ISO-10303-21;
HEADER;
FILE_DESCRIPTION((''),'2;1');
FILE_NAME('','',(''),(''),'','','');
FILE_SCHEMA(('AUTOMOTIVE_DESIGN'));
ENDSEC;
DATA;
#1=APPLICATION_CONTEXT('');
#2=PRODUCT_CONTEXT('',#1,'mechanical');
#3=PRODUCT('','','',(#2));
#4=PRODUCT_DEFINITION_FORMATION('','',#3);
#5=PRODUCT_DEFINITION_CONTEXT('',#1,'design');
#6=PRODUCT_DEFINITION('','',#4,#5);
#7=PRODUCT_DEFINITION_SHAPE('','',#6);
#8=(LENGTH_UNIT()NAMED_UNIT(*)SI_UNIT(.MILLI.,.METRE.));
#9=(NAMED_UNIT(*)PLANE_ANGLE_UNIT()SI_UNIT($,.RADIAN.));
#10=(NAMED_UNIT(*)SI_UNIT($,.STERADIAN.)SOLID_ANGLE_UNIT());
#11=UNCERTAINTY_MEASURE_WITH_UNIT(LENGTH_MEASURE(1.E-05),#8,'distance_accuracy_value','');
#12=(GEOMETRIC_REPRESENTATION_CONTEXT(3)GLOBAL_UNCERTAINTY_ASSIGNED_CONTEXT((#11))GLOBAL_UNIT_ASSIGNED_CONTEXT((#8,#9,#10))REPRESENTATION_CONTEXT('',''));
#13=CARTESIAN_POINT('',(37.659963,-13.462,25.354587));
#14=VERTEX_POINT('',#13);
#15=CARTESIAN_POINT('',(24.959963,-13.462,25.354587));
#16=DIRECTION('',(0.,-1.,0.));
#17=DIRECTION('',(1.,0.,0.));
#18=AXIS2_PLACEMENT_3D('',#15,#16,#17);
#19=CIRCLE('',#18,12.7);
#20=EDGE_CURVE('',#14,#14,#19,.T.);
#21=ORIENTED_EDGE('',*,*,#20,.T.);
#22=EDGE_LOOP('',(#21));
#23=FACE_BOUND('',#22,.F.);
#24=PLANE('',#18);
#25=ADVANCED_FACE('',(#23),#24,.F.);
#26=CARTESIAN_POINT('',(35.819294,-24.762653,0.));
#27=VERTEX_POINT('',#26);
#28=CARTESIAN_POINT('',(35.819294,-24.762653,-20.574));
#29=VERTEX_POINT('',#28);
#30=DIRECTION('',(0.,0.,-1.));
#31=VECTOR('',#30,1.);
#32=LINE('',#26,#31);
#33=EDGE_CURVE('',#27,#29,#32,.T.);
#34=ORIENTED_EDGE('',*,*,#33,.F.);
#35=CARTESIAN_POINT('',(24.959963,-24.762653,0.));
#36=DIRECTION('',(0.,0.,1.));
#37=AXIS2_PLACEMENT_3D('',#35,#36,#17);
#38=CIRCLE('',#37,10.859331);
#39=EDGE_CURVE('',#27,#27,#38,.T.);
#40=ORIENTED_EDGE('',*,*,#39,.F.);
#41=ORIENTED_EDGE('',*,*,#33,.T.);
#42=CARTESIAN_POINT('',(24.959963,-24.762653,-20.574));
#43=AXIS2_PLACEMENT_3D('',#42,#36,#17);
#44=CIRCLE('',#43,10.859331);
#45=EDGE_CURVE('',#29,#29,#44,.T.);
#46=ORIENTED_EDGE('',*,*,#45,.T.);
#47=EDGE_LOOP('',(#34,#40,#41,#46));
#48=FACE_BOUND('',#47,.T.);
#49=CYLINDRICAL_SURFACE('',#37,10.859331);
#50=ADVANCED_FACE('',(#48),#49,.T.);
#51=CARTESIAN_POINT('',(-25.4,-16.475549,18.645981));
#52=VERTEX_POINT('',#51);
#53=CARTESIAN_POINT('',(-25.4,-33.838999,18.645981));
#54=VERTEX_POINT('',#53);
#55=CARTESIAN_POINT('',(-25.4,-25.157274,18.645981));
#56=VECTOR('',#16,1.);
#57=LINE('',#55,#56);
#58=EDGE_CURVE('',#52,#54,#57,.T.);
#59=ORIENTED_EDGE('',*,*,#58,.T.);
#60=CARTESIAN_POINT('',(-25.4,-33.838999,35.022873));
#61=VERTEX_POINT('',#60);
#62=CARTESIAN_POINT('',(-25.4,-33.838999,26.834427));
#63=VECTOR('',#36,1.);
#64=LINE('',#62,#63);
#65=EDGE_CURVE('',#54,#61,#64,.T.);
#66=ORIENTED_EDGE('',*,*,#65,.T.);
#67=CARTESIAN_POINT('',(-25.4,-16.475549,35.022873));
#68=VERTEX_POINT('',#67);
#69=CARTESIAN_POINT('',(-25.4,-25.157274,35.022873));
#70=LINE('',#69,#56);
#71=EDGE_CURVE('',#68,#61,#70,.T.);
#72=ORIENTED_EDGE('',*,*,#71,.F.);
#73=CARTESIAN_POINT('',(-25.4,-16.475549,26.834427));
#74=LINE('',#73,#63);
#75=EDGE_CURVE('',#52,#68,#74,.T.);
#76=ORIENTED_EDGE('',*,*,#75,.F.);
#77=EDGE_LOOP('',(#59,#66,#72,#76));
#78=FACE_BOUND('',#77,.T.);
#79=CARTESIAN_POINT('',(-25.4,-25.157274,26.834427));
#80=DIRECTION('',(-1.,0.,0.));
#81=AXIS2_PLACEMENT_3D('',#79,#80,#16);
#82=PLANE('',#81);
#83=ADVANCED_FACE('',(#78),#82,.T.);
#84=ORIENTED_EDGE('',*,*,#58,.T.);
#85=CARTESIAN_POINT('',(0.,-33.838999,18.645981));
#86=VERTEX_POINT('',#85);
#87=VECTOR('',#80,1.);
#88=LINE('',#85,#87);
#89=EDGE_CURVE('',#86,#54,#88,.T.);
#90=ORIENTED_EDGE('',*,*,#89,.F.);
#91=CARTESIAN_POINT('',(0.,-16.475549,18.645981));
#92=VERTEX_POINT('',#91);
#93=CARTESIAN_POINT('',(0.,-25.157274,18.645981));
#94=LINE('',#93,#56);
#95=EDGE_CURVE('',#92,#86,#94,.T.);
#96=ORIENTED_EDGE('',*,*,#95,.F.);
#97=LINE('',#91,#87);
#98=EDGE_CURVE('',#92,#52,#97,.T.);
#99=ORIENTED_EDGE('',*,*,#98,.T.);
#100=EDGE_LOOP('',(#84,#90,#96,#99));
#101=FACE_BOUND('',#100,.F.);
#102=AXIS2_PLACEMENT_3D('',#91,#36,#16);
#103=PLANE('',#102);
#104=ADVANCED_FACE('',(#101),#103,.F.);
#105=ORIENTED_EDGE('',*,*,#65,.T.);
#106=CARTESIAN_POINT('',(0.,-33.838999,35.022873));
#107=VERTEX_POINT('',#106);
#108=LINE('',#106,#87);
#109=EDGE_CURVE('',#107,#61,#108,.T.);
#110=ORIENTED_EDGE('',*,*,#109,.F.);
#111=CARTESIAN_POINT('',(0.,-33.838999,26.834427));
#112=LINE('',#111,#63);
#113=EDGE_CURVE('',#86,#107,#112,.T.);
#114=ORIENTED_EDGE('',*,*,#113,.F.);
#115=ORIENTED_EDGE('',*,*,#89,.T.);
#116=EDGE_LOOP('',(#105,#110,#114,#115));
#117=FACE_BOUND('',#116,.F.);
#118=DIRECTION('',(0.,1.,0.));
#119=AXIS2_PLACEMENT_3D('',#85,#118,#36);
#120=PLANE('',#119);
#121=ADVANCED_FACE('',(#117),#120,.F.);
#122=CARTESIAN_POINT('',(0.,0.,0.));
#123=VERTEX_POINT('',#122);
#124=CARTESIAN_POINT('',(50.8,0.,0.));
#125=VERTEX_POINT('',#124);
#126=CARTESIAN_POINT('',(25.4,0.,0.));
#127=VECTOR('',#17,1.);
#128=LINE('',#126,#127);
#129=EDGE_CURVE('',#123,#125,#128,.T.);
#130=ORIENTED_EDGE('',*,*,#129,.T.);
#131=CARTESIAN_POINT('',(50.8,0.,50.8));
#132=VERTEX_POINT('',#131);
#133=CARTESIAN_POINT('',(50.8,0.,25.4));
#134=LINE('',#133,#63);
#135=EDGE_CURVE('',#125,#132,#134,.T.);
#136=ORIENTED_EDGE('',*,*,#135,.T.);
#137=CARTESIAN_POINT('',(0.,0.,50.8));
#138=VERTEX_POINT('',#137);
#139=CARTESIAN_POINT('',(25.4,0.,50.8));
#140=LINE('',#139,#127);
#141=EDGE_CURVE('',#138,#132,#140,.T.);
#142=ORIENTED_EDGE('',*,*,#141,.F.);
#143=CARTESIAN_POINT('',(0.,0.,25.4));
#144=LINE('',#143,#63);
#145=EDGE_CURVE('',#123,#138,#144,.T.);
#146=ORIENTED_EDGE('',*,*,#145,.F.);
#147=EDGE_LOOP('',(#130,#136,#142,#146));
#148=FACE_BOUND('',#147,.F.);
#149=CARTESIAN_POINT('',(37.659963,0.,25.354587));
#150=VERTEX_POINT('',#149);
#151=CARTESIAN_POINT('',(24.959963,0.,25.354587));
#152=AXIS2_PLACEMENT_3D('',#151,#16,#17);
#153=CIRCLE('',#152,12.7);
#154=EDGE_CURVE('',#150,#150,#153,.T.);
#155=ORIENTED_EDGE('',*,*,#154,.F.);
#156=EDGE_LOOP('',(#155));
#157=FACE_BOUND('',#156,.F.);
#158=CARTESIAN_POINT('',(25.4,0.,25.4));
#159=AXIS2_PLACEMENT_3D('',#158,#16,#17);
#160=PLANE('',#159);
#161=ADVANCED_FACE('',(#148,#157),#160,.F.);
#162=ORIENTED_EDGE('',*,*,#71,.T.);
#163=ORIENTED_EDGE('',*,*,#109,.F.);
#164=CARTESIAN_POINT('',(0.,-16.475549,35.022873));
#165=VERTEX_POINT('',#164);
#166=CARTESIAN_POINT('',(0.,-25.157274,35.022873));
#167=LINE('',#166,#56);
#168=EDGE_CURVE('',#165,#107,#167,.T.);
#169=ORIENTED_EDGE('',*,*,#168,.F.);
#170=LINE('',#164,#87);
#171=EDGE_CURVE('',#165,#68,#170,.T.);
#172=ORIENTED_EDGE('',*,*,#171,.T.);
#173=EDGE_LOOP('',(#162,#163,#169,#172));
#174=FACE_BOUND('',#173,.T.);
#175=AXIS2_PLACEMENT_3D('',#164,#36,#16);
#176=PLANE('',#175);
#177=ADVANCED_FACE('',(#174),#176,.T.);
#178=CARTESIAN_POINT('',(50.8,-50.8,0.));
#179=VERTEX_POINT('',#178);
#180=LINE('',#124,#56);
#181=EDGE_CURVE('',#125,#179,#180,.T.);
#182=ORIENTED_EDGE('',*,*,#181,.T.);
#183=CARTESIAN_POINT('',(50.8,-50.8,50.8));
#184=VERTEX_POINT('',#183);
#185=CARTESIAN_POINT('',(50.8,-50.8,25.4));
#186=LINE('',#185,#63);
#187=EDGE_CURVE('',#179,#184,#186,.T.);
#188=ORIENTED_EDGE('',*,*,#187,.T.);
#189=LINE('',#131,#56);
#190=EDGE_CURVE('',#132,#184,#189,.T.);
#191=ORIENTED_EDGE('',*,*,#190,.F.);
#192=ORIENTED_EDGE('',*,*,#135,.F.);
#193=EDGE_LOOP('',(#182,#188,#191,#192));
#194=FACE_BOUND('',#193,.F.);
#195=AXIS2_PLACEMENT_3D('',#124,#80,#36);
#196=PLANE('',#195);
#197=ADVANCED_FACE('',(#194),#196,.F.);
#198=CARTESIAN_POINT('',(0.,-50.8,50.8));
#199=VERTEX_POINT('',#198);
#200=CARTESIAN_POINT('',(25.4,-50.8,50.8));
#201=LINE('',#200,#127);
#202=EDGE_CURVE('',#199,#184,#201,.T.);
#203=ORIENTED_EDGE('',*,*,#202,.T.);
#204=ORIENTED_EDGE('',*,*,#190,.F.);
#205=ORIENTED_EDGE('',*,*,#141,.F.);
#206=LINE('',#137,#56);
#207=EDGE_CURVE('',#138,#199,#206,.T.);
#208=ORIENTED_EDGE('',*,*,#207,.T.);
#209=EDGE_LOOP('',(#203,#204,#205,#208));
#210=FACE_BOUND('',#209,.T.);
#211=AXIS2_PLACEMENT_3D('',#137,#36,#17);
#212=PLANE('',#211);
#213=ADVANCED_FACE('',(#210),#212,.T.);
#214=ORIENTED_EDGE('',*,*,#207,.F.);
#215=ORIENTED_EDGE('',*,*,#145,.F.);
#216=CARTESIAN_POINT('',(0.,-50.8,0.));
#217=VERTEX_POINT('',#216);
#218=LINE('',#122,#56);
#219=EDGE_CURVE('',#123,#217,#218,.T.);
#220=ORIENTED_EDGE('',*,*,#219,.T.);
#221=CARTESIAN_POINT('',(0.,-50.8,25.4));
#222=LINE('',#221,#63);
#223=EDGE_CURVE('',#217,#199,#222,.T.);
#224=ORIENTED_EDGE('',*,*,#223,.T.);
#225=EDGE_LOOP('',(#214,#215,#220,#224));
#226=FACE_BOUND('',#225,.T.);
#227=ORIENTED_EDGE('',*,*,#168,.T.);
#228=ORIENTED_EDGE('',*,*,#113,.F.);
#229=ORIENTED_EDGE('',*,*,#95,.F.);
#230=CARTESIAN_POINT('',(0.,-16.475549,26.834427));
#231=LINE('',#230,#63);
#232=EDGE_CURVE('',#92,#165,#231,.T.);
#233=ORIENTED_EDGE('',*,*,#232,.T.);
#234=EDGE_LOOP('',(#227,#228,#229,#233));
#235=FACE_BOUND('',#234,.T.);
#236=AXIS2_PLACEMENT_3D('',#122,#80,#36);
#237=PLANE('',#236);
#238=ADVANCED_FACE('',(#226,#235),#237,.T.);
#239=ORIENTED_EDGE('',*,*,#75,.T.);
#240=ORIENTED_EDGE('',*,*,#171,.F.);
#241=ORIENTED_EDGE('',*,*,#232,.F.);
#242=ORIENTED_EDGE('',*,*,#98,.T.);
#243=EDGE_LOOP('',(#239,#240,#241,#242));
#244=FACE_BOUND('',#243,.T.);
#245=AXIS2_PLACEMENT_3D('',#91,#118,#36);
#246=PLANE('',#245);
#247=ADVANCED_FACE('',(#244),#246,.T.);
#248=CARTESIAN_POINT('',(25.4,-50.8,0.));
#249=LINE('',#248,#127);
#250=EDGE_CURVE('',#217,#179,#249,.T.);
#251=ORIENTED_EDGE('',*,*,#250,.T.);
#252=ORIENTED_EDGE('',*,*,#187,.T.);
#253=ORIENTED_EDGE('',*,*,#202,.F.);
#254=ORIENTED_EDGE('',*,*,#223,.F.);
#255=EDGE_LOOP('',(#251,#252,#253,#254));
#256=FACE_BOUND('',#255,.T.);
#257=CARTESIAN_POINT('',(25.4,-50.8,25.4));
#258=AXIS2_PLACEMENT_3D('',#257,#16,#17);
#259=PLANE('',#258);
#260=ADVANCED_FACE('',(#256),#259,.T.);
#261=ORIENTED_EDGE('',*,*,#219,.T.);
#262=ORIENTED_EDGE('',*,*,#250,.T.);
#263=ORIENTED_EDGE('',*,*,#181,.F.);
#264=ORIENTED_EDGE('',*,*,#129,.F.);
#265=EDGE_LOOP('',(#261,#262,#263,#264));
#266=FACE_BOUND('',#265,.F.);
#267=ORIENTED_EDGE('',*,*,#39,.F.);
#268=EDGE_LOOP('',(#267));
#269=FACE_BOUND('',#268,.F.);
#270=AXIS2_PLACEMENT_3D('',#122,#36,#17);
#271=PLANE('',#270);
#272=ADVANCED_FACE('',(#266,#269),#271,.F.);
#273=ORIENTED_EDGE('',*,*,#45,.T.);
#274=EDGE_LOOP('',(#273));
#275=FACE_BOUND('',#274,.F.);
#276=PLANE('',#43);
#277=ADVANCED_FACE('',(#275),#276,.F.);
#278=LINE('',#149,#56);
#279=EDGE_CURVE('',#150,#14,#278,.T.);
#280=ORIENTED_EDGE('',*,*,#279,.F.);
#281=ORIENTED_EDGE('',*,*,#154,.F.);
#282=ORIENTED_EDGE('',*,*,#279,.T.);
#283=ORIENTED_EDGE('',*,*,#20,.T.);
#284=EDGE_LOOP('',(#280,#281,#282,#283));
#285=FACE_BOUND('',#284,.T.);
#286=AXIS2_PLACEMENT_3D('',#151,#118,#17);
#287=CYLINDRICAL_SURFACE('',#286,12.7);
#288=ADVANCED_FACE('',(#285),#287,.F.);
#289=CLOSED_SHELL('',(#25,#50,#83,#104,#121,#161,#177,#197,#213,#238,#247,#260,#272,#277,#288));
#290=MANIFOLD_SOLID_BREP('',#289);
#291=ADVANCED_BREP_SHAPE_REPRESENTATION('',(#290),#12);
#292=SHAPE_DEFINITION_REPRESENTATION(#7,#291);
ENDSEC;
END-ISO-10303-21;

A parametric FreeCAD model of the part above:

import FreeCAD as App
import Part
import Sketcher

V = App.Vector
Q = App.Units.Quantity

doc = App.newDocument("Part")
body = doc.addObject("PartDesign::Body", "Body")

# Sketch on XZ plane
sketch1 = doc.addObject("Sketcher::SketchObject", "Sketch")
body.addObject(sketch1)
sketch1.AttachmentSupport = (doc.XZ_Plane, [""])
sketch1.MapMode = "FlatFace"
sketch1.addGeometry([
    Part.LineSegment(V(0, 50.8, 0), V(0, 0, 0)),
    Part.LineSegment(V(0, 0, 0), V(50.8, 0, 0)),
    Part.LineSegment(V(50.8, 0, 0), V(50.8, 50.8, 0)),
    Part.LineSegment(V(50.8, 50.8, 0), V(0, 50.8, 0)),
], False)
sketch1.addConstraint([
    Sketcher.Constraint("Coincident", 0, 2, 1, 1),
    Sketcher.Constraint("Coincident", 1, 2, 2, 1),
    Sketcher.Constraint("Coincident", 2, 2, 3, 1),
    Sketcher.Constraint("Coincident", 3, 2, 0, 1),
    Sketcher.Constraint("Vertical", 0),
    Sketcher.Constraint("Horizontal", 1),
    Sketcher.Constraint("Vertical", 2),
    Sketcher.Constraint("Horizontal", 3),
    Sketcher.Constraint("Coincident", 0, 2, -1, 1),
    Sketcher.Constraint("Equal", 3, 0),
    Sketcher.Constraint("DistanceX", 1, 1, 1, 2, Q("2 in")),
])
pad1 = doc.addObject("PartDesign::Pad", "Pad")
body.addObject(pad1)
pad1.Profile = sketch1
pad1.Length = Q("2 in")

# Sketch on XZ plane
sketch2 = doc.addObject("Sketcher::SketchObject", "Sketch001")
body.addObject(sketch2)
sketch2.AttachmentSupport = (doc.XZ_Plane, [""])
sketch2.MapMode = "FlatFace"
sketch2.addGeometry(Part.Circle(V(24.959963, 25.354587, 0), V(0, 0, 1), 12.7), False)
sketch2.addConstraint([
    Sketcher.Constraint("Diameter", 0, Q("1 in")),
    Sketcher.Constraint("DistanceX", -1, 1, 0, 3, Q("24.959963 mm")),
    Sketcher.Constraint("DistanceY", -1, 1, 0, 3, Q("25.354587 mm")),
])
pocket1 = doc.addObject("PartDesign::Pocket", "Pocket")
body.addObject(pocket1)
pocket1.Profile = sketch2
pocket1.Length = Q("0.53 in")
pocket1.Reversed = True

# Sketch on XY plane
sketch3 = doc.addObject("Sketcher::SketchObject", "Sketch002")
body.addObject(sketch3)
sketch3.AttachmentSupport = (doc.XY_Plane, [""])
sketch3.MapMode = "FlatFace"
sketch3.addGeometry(Part.Circle(V(24.959963, -24.762653, 0), V(0, 0, 1), 10.859331), False)
sketch3.addConstraint([
    Sketcher.Constraint("Diameter", 0, Q("21.718662 mm")),
    Sketcher.Constraint("DistanceX", -1, 1, 0, 3, Q("24.959963 mm")),
    Sketcher.Constraint("DistanceY", 0, 3, -1, 1, Q("24.762653 mm")),
])
pad2 = doc.addObject("PartDesign::Pad", "Pad001")
body.addObject(pad2)
pad2.Profile = sketch3
pad2.Length = Q("0.81 in")
pad2.Reversed = True

# Sketch on YZ plane
sketch4 = doc.addObject("Sketcher::SketchObject", "Sketch003")
body.addObject(sketch4)
sketch4.AttachmentSupport = (doc.YZ_Plane, [""])
sketch4.MapMode = "FlatFace"
sketch4.addGeometry([
    Part.LineSegment(V(-16.475549, 35.022873, 0), V(-16.475549, 18.645981, 0)),
    Part.LineSegment(V(-16.475549, 18.645981, 0), V(-33.838999, 18.645981, 0)),
    Part.LineSegment(V(-33.838999, 18.645981, 0), V(-33.838999, 35.022873, 0)),
    Part.LineSegment(V(-33.838999, 35.022873, 0), V(-16.475549, 35.022873, 0)),
], False)
sketch4.addConstraint([
    Sketcher.Constraint("Coincident", 0, 2, 1, 1),
    Sketcher.Constraint("Coincident", 1, 2, 2, 1),
    Sketcher.Constraint("Coincident", 2, 2, 3, 1),
    Sketcher.Constraint("Coincident", 3, 2, 0, 1),
    Sketcher.Constraint("Vertical", 0),
    Sketcher.Constraint("Horizontal", 1),
    Sketcher.Constraint("Vertical", 2),
    Sketcher.Constraint("Horizontal", 3),
    Sketcher.Constraint("DistanceX", 1, 2, 1, 1, Q("17.36345 mm")),
    Sketcher.Constraint("DistanceY", 0, 2, 0, 1, Q("16.376892 mm")),
    Sketcher.Constraint("DistanceX", 1, 2, -1, 1, Q("33.838999 mm")),
    Sketcher.Constraint("DistanceY", -1, 1, 0, 2, Q("18.645981 mm")),
])
pad3 = doc.addObject("PartDesign::Pad", "Pad002")
body.addObject(pad3)
pad3.Profile = sketch4
pad3.Length = Q("1 in")
pad3.Reversed = True

doc.recompute()
